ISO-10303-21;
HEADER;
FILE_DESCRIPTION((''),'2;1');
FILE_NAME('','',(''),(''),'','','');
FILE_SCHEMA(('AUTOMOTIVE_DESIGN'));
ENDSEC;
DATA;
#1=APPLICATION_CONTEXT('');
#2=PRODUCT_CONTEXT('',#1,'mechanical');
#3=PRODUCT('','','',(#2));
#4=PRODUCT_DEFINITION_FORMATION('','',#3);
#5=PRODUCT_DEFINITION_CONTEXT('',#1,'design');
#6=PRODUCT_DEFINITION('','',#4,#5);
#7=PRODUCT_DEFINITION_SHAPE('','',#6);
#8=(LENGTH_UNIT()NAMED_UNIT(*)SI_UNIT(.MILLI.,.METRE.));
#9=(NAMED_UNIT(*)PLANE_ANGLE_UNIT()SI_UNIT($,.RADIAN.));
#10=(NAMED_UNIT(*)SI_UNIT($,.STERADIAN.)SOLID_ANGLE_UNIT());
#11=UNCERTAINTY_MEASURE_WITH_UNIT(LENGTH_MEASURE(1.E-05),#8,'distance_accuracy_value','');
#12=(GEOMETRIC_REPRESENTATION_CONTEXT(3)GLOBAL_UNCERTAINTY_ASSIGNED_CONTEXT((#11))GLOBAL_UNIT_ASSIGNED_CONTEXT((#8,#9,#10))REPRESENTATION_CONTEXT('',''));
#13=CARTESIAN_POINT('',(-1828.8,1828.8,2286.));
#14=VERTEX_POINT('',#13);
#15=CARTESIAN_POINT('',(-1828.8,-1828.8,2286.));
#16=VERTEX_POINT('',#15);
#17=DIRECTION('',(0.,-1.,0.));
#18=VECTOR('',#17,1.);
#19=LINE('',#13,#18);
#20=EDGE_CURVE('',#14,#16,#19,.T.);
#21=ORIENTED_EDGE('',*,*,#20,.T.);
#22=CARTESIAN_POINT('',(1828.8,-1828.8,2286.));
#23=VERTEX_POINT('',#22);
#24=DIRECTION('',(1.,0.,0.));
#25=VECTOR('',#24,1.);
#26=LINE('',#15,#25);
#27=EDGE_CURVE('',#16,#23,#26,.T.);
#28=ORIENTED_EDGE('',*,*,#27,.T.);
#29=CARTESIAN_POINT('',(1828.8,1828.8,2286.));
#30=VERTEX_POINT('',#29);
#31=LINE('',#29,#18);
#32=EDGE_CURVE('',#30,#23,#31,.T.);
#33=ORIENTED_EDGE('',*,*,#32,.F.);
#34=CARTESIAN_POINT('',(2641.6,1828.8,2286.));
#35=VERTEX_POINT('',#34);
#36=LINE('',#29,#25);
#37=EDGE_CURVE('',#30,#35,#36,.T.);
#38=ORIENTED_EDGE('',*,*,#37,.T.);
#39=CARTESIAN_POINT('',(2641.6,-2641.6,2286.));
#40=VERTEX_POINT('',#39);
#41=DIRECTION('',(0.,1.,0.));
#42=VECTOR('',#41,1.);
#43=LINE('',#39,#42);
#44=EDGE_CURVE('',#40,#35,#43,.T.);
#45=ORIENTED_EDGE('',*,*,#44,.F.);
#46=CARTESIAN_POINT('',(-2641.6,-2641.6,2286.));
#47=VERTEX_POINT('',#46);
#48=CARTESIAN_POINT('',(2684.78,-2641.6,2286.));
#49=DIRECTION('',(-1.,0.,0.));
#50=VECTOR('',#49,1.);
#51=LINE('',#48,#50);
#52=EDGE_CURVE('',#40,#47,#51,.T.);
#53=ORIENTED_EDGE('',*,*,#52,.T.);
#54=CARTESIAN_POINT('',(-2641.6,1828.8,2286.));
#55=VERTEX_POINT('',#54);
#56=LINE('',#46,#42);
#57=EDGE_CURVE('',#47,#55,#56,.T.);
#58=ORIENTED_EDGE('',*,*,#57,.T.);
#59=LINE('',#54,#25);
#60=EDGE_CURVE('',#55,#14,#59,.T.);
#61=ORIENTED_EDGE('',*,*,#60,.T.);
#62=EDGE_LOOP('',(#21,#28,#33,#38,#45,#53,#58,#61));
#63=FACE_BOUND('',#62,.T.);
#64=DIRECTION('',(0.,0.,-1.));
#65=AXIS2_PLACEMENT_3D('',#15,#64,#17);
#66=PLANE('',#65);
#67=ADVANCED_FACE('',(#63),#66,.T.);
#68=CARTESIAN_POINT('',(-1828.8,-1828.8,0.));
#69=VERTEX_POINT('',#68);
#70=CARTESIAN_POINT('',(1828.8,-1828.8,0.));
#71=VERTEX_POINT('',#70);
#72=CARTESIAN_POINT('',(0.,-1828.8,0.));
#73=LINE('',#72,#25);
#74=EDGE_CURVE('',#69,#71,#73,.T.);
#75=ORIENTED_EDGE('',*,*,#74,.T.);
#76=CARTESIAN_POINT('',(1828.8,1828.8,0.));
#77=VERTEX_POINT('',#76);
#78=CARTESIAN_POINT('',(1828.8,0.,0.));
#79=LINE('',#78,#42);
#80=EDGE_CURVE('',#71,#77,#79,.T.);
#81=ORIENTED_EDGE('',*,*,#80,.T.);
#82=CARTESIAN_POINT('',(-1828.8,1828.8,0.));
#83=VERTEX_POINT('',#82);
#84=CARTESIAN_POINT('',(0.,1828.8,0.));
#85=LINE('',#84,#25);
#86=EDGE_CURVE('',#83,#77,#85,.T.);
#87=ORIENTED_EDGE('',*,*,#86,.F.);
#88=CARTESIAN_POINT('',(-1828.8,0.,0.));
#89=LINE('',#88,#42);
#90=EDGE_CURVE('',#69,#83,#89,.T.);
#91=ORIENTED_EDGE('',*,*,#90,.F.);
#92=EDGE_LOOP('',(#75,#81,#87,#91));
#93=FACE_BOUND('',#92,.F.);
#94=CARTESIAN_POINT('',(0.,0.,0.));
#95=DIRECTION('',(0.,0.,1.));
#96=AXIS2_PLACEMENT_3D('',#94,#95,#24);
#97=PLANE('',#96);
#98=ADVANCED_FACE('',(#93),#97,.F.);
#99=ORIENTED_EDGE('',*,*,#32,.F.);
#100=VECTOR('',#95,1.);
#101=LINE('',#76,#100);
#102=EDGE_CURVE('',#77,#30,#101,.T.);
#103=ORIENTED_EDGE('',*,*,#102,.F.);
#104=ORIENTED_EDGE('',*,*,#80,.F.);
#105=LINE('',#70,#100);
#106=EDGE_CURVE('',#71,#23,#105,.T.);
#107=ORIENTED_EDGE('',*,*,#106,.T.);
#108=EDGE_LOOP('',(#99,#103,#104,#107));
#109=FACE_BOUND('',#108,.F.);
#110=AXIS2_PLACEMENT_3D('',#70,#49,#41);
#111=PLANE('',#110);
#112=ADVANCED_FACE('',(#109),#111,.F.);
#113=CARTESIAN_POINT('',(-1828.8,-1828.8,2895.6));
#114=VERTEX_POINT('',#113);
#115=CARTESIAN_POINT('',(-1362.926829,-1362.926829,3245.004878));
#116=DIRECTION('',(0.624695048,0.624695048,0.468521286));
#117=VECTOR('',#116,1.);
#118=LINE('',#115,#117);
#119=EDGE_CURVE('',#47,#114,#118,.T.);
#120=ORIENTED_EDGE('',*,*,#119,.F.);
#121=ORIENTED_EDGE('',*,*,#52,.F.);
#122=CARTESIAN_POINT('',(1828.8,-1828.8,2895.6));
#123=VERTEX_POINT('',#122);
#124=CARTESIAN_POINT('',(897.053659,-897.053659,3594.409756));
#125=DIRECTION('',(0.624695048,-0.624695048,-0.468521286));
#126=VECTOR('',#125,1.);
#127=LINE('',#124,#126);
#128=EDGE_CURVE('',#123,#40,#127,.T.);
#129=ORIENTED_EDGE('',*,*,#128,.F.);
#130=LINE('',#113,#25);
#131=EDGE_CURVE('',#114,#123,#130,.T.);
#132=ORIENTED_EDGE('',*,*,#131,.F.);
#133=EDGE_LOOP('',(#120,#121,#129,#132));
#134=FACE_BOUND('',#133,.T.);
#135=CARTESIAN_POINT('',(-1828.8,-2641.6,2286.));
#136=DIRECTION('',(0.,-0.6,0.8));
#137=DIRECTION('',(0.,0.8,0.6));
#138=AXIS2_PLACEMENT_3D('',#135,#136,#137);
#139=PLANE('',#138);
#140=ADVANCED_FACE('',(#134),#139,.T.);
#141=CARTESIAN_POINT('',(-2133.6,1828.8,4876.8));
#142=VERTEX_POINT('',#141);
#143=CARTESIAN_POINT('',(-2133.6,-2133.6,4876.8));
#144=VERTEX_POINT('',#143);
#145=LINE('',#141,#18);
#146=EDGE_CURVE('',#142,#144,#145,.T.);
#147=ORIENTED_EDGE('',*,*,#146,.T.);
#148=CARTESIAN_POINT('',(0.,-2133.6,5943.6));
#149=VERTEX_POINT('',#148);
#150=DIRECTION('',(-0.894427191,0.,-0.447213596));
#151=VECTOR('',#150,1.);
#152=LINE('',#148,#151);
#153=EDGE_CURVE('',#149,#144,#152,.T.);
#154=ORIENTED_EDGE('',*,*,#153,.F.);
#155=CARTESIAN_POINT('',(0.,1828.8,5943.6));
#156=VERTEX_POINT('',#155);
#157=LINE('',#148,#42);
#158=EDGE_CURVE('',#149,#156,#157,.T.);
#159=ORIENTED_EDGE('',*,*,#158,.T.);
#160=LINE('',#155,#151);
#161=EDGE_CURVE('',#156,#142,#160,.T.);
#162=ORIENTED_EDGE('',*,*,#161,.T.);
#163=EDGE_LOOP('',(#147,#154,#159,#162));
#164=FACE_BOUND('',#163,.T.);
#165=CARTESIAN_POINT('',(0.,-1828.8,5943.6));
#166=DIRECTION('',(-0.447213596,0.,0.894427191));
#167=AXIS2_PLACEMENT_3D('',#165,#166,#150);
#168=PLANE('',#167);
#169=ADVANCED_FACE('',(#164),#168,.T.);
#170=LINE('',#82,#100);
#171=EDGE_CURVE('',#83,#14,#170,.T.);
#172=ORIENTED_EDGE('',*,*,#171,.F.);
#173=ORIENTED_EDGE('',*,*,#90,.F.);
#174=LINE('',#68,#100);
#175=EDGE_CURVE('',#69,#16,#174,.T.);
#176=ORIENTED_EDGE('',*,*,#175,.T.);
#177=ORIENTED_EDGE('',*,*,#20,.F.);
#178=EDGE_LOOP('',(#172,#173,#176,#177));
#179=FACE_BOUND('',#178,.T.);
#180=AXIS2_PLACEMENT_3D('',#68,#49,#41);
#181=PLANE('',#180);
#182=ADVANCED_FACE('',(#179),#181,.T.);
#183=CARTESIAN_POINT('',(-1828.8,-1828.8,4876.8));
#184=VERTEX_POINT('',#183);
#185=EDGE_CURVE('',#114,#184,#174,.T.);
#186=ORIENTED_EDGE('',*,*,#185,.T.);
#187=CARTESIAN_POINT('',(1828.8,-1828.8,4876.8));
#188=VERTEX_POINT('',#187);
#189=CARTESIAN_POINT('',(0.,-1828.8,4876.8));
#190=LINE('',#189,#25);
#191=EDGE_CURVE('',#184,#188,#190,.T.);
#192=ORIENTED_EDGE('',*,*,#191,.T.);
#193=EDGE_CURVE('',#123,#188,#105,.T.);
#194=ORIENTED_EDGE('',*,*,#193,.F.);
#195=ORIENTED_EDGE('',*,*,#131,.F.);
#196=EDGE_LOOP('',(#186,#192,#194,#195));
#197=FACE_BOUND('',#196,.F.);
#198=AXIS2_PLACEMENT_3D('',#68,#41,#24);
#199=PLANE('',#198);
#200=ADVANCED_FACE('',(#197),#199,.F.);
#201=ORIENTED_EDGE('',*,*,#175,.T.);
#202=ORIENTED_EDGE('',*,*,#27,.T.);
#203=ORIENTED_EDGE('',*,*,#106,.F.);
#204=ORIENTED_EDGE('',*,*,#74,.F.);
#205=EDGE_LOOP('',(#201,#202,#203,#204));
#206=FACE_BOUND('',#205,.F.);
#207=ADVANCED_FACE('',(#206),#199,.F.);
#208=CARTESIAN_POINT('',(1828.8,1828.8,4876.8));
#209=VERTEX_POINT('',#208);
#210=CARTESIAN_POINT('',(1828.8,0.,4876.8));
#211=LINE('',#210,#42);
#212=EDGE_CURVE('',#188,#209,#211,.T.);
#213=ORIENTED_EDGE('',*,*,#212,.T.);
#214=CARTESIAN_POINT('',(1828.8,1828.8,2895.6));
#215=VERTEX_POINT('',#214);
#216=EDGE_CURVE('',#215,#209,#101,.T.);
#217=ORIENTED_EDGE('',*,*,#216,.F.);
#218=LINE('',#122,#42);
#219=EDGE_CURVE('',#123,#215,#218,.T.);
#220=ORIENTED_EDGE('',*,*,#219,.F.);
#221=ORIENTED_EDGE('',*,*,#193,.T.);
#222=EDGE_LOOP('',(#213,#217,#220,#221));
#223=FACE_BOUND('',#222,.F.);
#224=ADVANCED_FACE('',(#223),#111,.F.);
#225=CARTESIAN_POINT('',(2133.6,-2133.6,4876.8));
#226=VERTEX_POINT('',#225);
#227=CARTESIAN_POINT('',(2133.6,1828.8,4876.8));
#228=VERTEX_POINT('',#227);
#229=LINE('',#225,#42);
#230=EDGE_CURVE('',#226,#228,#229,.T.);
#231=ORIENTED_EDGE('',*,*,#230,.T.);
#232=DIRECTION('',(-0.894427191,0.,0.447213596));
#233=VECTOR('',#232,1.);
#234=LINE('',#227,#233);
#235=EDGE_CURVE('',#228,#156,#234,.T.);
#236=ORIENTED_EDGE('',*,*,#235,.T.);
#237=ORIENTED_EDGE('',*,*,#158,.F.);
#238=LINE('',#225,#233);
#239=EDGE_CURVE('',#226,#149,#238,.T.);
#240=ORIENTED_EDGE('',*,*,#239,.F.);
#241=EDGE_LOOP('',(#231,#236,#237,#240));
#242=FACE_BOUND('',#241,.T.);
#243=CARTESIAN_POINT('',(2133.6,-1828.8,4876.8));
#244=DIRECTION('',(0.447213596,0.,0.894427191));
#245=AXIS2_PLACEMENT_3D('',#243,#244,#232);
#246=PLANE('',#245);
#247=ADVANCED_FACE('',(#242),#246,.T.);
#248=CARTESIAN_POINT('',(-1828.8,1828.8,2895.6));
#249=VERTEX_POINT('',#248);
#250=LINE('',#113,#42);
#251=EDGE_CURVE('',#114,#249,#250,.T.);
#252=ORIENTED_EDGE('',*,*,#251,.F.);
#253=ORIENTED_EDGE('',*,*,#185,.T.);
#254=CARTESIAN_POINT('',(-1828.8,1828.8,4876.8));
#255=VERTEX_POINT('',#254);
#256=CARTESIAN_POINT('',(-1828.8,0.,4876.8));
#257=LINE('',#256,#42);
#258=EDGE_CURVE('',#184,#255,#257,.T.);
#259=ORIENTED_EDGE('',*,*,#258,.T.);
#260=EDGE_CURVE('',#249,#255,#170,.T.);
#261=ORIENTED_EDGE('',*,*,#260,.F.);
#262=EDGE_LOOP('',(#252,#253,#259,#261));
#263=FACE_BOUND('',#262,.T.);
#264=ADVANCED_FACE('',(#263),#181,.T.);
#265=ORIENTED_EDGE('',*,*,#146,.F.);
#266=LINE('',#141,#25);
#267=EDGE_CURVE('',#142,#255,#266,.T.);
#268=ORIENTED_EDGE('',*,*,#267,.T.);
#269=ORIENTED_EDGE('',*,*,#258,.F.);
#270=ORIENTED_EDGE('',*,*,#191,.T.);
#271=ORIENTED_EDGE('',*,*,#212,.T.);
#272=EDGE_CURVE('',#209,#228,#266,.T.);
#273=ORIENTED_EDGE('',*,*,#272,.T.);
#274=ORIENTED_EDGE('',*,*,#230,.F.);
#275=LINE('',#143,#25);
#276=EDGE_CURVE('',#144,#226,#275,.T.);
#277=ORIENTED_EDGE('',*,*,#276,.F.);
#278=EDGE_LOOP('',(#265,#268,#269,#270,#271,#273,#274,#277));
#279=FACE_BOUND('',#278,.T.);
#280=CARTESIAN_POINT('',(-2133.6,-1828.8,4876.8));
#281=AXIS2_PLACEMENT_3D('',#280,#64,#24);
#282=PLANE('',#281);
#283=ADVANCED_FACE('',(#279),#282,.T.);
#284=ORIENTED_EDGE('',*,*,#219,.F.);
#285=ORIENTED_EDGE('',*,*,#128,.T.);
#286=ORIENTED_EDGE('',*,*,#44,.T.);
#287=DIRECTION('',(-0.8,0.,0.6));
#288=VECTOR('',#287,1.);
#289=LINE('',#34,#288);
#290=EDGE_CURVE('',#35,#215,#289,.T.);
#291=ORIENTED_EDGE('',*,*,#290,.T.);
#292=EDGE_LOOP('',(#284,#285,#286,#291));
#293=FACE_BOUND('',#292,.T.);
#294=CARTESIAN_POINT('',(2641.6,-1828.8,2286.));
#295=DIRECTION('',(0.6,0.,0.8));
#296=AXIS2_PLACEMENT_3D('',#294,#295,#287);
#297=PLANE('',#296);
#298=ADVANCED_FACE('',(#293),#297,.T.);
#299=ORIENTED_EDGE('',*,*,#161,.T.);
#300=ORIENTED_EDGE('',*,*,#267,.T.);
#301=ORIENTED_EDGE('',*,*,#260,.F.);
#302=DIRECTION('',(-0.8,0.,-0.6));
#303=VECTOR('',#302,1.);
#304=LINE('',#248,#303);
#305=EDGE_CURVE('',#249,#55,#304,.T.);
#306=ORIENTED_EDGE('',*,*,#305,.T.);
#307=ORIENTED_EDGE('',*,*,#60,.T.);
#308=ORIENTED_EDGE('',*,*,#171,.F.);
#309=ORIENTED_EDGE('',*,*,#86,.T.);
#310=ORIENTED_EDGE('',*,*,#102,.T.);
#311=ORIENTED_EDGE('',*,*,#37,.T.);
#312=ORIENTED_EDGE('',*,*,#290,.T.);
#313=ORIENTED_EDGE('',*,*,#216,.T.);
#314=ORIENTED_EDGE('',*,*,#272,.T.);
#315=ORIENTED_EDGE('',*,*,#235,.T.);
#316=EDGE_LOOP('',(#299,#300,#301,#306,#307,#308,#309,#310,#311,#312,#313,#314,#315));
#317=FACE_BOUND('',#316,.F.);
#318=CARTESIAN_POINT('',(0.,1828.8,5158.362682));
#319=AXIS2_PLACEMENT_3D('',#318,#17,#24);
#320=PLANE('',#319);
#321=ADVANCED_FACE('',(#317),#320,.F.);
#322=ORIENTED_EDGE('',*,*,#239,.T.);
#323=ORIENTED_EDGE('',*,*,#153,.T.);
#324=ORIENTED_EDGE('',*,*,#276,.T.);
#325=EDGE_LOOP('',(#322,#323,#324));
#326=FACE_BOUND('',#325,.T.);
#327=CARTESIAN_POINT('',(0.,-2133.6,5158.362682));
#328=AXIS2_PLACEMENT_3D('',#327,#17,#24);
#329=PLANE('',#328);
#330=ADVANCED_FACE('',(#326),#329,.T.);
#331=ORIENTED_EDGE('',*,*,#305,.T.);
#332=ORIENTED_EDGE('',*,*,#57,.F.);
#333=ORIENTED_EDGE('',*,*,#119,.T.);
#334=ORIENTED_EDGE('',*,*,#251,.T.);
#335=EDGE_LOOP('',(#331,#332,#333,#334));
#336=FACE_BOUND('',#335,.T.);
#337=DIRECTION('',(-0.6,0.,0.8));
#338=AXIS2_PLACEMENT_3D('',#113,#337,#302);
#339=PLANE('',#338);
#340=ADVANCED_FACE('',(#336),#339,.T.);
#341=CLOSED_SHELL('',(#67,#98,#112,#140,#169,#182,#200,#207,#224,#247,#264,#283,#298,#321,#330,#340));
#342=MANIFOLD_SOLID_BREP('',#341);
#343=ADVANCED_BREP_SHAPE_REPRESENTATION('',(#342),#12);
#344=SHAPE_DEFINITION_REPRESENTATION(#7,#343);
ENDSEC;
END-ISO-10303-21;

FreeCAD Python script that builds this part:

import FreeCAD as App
import Part
import Sketcher

V = App.Vector
Q = App.Units.Quantity

doc = App.newDocument("Part")
body = doc.addObject("PartDesign::Body", "Body")

# Sketch on XY plane
sketch1 = body.newObject("Sketcher::SketchObject", "Sketch")
sketch1.AttachmentSupport = (doc.getObject("XY_Plane"), [""])
sketch1.MapMode = "FlatFace"
sketch1.addGeometry([
    Part.LineSegment(V(-1828.8, 1828.8, 0), V(-1828.8, -1828.8, 0)),
    Part.LineSegment(V(-1828.8, -1828.8, 0), V(1828.8, -1828.8, 0)),
    Part.LineSegment(V(1828.8, -1828.8, 0), V(1828.8, 1828.8, 0)),
    Part.LineSegment(V(1828.8, 1828.8, 0), V(-1828.8, 1828.8, 0)),
], False)
sketch1.addConstraint([
    Sketcher.Constraint("Coincident", 0, 2, 1, 1),
    Sketcher.Constraint("Coincident", 1, 2, 2, 1),
    Sketcher.Constraint("Coincident", 2, 2, 3, 1),
    Sketcher.Constraint("Coincident", 3, 2, 0, 1),
    Sketcher.Constraint("Vertical", 0),
    Sketcher.Constraint("Horizontal", 1),
    Sketcher.Constraint("Vertical", 2),
    Sketcher.Constraint("Horizontal", 3),
    Sketcher.Constraint("Symmetric", 0, 2, 2, 2, -1, 1),
    Sketcher.Constraint("Equal", 3, 0),
    Sketcher.Constraint("DistanceX", 1, 1, 1, 2, Q("144 in")),
])
pad1 = body.newObject("PartDesign::Pad", "Pad")
pad1.Profile = sketch1
pad1.Length = Q("192 in")

# Sketch on XZ plane
sketch2 = body.newObject("Sketcher::SketchObject", "Sketch001")
sketch2.AttachmentSupport = (doc.getObject("XZ_Plane"), [""])
sketch2.MapMode = "FlatFace"
sketch2.AttachmentOffset = App.Placement(V(0, 0, 72 * 25.4), App.Rotation())
sketch2.addGeometry([
    Part.LineSegment(V(0, 5943.6, 0), V(-2133.6, 4876.8, 0)),
    Part.LineSegment(V(-2133.6, 4876.8, 0), V(2133.6, 4876.8, 0)),
    Part.LineSegment(V(2133.6, 4876.8, 0), V(0, 5943.6, 0)),
], False)
sketch2.addConstraint([
    Sketcher.Constraint("Coincident", 0, 2, 1, 1),
    Sketcher.Constraint("Coincident", 1, 2, 2, 1),
    Sketcher.Constraint("Coincident", 2, 2, 0, 1),
    Sketcher.Constraint("Horizontal", 1),
    Sketcher.Constraint("PointOnObject", 2, 2, -2),
    Sketcher.Constraint("Equal", 0, 2),
    Sketcher.Constraint("DistanceX", 1, 1, 1, 2, Q("168 in")),
    Sketcher.Constraint("DistanceY", -1, 1, 0, 2, Q("192 in")),
    Sketcher.Constraint("DistanceY", -1, 1, 2, 2, Q("234 in")),
])
pad2 = body.newObject("PartDesign::Pad", "Pad001")
pad2.Profile = sketch2
pad2.Type = "TwoLengths"
pad2.Length = Q("12 in")
pad2.Length2 = Q("144 in")

# Sketch on XZ plane
sketch3 = body.newObject("Sketcher::SketchObject", "Sketch002")
sketch3.AttachmentSupport = (doc.getObject("XZ_Plane"), [""])
sketch3.MapMode = "FlatFace"
sketch3.AttachmentOffset = App.Placement(V(0, 0, 72 * 25.4), App.Rotation())
sketch3.addGeometry([
    Part.LineSegment(V(-1828.8, 2286, 0), V(-1828.8, 2895.6, 0)),  # 0
    Part.LineSegment(V(-1828.8, 2895.6, 0), V(-2641.6, 2286, 0)),  # 1
    Part.LineSegment(V(-2641.6, 2286, 0), V(-1828.8, 2286, 0)),  # 2
    Part.LineSegment(V(2641.6, 2286, 0), V(1828.8, 2895.6, 0)),  # 3
    Part.LineSegment(V(1828.8, 2895.6, 0), V(1828.8, 2286, 0)),  # 4
    Part.LineSegment(V(1828.8, 2286, 0), V(2641.6, 2286, 0)),  # 5
], False)
sketch3.addConstraint([
    Sketcher.Constraint("Coincident", 0, 2, 1, 1),
    Sketcher.Constraint("Coincident", 1, 2, 2, 1),
    Sketcher.Constraint("Coincident", 2, 2, 0, 1),
    Sketcher.Constraint("Coincident", 3, 2, 4, 1),
    Sketcher.Constraint("Coincident", 4, 2, 5, 1),
    Sketcher.Constraint("Coincident", 5, 2, 3, 1),
    Sketcher.Constraint("Vertical", 0),
    Sketcher.Constraint("Horizontal", 2),
    Sketcher.Constraint("Vertical", 4),
    Sketcher.Constraint("Horizontal", 5),
    Sketcher.Constraint("Symmetric", 0, 2, 3, 2, -2),
    Sketcher.Constraint("Symmetric", 1, 2, 5, 2, -2),
    Sketcher.Constraint("DistanceX", 2, 1, 2, 2, Q("32 in")),
    Sketcher.Constraint("DistanceY", 0, 1, 0, 2, Q("24 in")),
    Sketcher.Constraint("DistanceX", 0, 2, -1, 1, Q("72 in")),
    Sketcher.Constraint("DistanceY", -1, 1, 0, 2, Q("114 in")),
])
pad3 = body.newObject("PartDesign::Pad", "Pad002")
pad3.Profile = sketch3
pad3.Length = Q("144 in")
pad3.Reversed = True
pad4 = body.newObject("PartDesign::Pad", "Pad003")
pad4.Profile = sketch3
pad4.Length = Q("43 in")
pad4.Reversed = True

# Sketch on YZ plane
sketch4 = body.newObject("Sketcher::SketchObject", "Sketch003")
sketch4.AttachmentSupport = (doc.getObject("YZ_Plane"), [""])
sketch4.MapMode = "FlatFace"
sketch4.AttachmentOffset = App.Placement(V(0, 0, -72 * 25.4), App.Rotation())
sketch4.addGeometry([
    Part.LineSegment(V(-1828.8, 2895.6, 0), V(-1828.8, 2286, 0)),
    Part.LineSegment(V(-1828.8, 2286, 0), V(-2641.6, 2286, 0)),
    Part.LineSegment(V(-2641.6, 2286, 0), V(-1828.8, 2895.6, 0)),
], False)
sketch4.addConstraint([
    Sketcher.Constraint("Coincident", 0, 2, 1, 1),
    Sketcher.Constraint("Coincident", 1, 2, 2, 1),
    Sketcher.Constraint("Coincident", 2, 2, 0, 1),
    Sketcher.Constraint("Vertical", 0),
    Sketcher.Constraint("Horizontal", 1),
    Sketcher.Constraint("DistanceX", 1, 2, 1, 1, Q("32 in")),
    Sketcher.Constraint("DistanceY", 0, 2, 0, 1, Q("24 in")),
    Sketcher.Constraint("DistanceX", 0, 2, -1, 1, Q("72 in")),
    Sketcher.Constraint("DistanceY", -1, 1, 0, 2, Q("90 in")),
])
pad5 = body.newObject("PartDesign::Pad", "Pad004")
pad5.Profile = sketch4
pad5.Type = "TwoLengths"
pad5.Length = Q("34.3 in")
pad5.Length2 = Q("177.7 in")
pad5.Reversed = True

# Sketch on YZ plane
sketch5 = body.newObject("Sketcher::SketchObject", "Sketch004")
sketch5.AttachmentSupport = (doc.getObject("YZ_Plane"), [""])
sketch5.MapMode = "FlatFace"
sketch5.AttachmentOffset = App.Placement(V(0, 0, -106.3 * 25.4), App.Rotation())
sketch5.addGeometry([
    Part.LineSegment(V(-3195.674896, 2895.6, 0), V(-1828.8, 2895.6, 0)),
    Part.LineSegment(V(-1828.8, 2895.6, 0), V(-2641.6, 2286, 0)),
    Part.LineSegment(V(-2641.6, 2286, 0), V(-3195.674896, 2286, 0)),
    Part.LineSegment(V(-3195.674896, 2286, 0), V(-3195.674896, 2895.6, 0)),
], False)
sketch5.addConstraint([
    Sketcher.Constraint("Coincident", 0, 2, 1, 1),
    Sketcher.Constraint("Coincident", 1, 2, 2, 1),
    Sketcher.Constraint("Coincident", 2, 2, 3, 1),
    Sketcher.Constraint("Coincident", 3, 2, 0, 1),
    Sketcher.Constraint("Horizontal", 0),
    Sketcher.Constraint("Horizontal", 2),
    Sketcher.Constraint("Vertical", 3),
    Sketcher.Constraint("DistanceY", 3, 1, 3, 2, Q("24 in")),
    Sketcher.Constraint("Distance", 1, Q("40 in")),
    Sketcher.Constraint("DistanceX", 0, 2, -1, 1, Q("72 in")),
    Sketcher.Constraint("DistanceY", -1, 1, 0, 2, Q("114 in")),
    Sketcher.Constraint("DistanceX", 0, 1, 0, 2, Q("1366.874896 mm")),
])
pocket1 = body.newObject("PartDesign::Pocket", "Pocket")
pocket1.Profile = sketch5
pocket1.Type = "ThroughAll"
pocket1.Reversed = True

# Sketch on XZ plane
sketch6 = body.newObject("Sketcher::SketchObject", "Sketch005")
sketch6.AttachmentSupport = (doc.getObject("XZ_Plane"), [""])
sketch6.MapMode = "FlatFace"
sketch6.AttachmentOffset = App.Placement(V(0, 0, -72 * 25.4), App.Rotation())
sketch6.addGeometry([
    Part.LineSegment(V(2641.6, 2286, 0), V(1828.8, 2895.6, 0)),  # 0
    Part.LineSegment(V(1828.8, 2895.6, 0), V(2902.575731, 2895.6, 0)),  # 1
    Part.LineSegment(V(2902.575731, 2895.6, 0), V(2902.575731, 2286, 0)),  # 2
    Part.LineSegment(V(2902.575731, 2286, 0), V(2641.6, 2286, 0)),  # 3
    Part.LineSegment(V(-2902.575731, 2286, 0), V(-2902.575731, 2895.6, 0)),  # 4
    Part.LineSegment(V(-2902.575731, 2895.6, 0), V(-1828.8, 2895.6, 0)),  # 5
    Part.LineSegment(V(-1828.8, 2895.6, 0), V(-2641.6, 2286, 0)),  # 6
    Part.LineSegment(V(-2641.6, 2286, 0), V(-2902.575731, 2286, 0)),  # 7
], False)
sketch6.addConstraint([
    Sketcher.Constraint("Coincident", 0, 2, 1, 1),
    Sketcher.Constraint("Coincident", 1, 2, 2, 1),
    Sketcher.Constraint("Coincident", 2, 2, 3, 1),
    Sketcher.Constraint("Coincident", 3, 2, 0, 1),
    Sketcher.Constraint("Coincident", 4, 2, 5, 1),
    Sketcher.Constraint("Coincident", 5, 2, 6, 1),
    Sketcher.Constraint("Coincident", 6, 2, 7, 1),
    Sketcher.Constraint("Coincident", 7, 2, 4, 1),
    Sketcher.Constraint("Horizontal", 1),
    Sketcher.Constraint("Vertical", 2),
    Sketcher.Constraint("Horizontal", 3),
    Sketcher.Constraint("Vertical", 4),
    Sketcher.Constraint("Horizontal", 5),
    Sketcher.Constraint("Horizontal", 7),
    Sketcher.Constraint("Symmetric", 1, 2, 4, 2, -2),
    Sketcher.Constraint("Symmetric", 3, 2, 6, 2, -2),
    Sketcher.Constraint("Equal", 1, 5),
    Sketcher.Constraint("DistanceY", 2, 2, 2, 1, Q("24 in")),
    Sketcher.Constraint("Distance", 0, Q("40 in")),
    Sketcher.Constraint("DistanceX", -1, 1, 0, 2, Q("72 in")),
    Sketcher.Constraint("DistanceY", -1, 1, 0, 2, Q("114 in")),
    Sketcher.Constraint("DistanceX", 1, 1, 1, 2, Q("1073.775731 mm")),
])
pocket2 = body.newObject("PartDesign::Pocket", "Pocket001")
pocket2.Profile = sketch6
pocket2.Type = "ThroughAll"
pocket2.Reversed = True

doc.recompute()
